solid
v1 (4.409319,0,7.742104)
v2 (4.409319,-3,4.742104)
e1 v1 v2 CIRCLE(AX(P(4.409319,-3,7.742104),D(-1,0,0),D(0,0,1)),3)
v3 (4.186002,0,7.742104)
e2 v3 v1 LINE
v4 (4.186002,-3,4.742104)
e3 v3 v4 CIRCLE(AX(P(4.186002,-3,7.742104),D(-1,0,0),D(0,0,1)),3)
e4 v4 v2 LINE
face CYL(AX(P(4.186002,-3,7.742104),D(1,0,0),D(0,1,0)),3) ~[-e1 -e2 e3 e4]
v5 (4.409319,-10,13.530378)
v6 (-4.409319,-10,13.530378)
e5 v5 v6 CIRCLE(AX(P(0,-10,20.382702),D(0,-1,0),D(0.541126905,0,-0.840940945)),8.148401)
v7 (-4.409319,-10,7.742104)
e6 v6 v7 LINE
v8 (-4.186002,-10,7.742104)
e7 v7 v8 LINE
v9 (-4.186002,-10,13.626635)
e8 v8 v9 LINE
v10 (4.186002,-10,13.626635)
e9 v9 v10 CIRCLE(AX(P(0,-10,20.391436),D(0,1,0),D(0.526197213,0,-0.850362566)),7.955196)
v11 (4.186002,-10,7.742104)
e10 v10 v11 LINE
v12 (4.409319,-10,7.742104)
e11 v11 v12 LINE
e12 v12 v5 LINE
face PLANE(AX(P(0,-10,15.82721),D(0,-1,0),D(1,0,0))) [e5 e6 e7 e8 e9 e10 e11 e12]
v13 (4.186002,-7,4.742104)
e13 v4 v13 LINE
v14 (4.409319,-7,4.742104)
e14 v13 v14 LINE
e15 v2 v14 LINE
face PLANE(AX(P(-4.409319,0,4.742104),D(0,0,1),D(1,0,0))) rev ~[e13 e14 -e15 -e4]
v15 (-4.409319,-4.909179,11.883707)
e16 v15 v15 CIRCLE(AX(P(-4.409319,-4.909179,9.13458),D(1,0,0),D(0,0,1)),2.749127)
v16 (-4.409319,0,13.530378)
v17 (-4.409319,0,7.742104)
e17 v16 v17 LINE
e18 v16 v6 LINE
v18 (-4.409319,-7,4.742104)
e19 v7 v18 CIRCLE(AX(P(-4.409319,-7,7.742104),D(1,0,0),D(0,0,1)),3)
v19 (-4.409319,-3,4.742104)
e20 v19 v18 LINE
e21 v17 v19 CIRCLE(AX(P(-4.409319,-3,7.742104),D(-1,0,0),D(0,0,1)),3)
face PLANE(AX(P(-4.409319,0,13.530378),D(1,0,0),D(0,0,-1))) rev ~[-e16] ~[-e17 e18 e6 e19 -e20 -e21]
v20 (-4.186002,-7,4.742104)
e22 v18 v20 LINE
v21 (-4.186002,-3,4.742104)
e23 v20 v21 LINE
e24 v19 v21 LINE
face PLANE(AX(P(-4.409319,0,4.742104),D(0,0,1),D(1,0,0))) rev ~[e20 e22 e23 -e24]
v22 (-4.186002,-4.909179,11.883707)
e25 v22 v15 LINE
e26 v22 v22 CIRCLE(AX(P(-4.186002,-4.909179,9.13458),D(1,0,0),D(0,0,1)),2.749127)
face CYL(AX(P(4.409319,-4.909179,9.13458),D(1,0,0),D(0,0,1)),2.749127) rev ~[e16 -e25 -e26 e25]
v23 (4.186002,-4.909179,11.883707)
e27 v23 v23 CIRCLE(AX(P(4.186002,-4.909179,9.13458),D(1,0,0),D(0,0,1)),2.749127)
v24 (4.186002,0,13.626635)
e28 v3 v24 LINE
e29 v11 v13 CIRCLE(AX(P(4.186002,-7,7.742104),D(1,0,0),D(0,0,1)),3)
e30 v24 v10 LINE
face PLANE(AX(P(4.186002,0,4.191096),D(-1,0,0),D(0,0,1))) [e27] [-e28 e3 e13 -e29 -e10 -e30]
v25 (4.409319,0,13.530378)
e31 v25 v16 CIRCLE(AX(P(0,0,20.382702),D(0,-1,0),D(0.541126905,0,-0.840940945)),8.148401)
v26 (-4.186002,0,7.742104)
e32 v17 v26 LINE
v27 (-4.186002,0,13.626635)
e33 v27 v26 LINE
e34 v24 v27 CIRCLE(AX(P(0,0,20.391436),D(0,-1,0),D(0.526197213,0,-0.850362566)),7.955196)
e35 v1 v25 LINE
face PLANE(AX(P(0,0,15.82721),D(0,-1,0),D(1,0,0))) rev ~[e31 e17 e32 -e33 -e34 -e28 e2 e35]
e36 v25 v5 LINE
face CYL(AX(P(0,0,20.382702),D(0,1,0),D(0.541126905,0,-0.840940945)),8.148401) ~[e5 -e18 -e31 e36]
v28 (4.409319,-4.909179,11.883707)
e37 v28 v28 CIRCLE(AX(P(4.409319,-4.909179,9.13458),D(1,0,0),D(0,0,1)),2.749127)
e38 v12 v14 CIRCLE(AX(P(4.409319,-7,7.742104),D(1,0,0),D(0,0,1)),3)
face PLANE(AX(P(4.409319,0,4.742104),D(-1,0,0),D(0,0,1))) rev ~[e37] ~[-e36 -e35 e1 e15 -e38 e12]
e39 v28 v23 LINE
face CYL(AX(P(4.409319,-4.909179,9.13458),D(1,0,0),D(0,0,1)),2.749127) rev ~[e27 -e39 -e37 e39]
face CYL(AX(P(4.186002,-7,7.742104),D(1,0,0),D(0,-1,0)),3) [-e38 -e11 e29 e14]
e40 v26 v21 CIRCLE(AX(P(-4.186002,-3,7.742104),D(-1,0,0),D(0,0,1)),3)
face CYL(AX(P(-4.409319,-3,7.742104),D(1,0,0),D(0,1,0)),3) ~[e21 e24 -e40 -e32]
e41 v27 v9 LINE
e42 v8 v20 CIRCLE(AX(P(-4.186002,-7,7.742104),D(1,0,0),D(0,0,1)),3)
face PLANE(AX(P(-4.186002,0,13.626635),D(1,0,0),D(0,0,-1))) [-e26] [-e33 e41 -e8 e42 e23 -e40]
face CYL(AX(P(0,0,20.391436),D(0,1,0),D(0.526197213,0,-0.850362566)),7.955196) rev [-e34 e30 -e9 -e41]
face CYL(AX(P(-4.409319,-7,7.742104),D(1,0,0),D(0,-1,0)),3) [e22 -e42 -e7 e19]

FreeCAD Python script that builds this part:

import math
import FreeCAD as App
import Part
import Sketcher
from FreeCAD import Vector
Q = App.Units.Quantity


def edges_at(feature, points):
    """Names of the edges that pass closest to the given points."""
    edges = feature.Shape.Edges
    near = lambda p: min(range(len(edges)), key=lambda i: edges[i].distToShape(Part.Vertex(*p))[0])
    return sorted({f"Edge{near(p) + 1}" for p in points})

doc = App.newDocument("Part")
body = doc.addObject("PartDesign::Body", "Body")

# Sketch on XZ plane
sketch1 = body.newObject("Sketcher::SketchObject", "Sketch")
sketch1.AttachmentSupport = (doc.getObject("XZ_Plane"), [""])
sketch1.MapMode = "FlatFace"
sketch1.addGeometry(Part.ArcOfCircle(Part.Circle(Vector(0, 20, 0), Vector(0, 0, 1), 8), math.radians(-57), math.radians(237)), False)
sketch1.addGeometry(Part.LineSegment(Vector(-4, 14, 0), Vector(-4, 5, 0)), False)
sketch1.addGeometry(Part.LineSegment(Vector(-4, 5, 0), Vector(4, 5, 0)), False)
sketch1.addGeometry(Part.LineSegment(Vector(4, 5, 0), Vector(4, 14, 0)), False)
sketch1.addConstraint(Sketcher.Constraint("Coincident", 0, 2, 1, 1))
sketch1.addConstraint(Sketcher.Constraint("Coincident", 1, 2, 2, 1))
sketch1.addConstraint(Sketcher.Constraint("Coincident", 2, 2, 3, 1))
sketch1.addConstraint(Sketcher.Constraint("Coincident", 3, 2, 0, 1))
sketch1.addConstraint(Sketcher.Constraint("Vertical", 1))
sketch1.addConstraint(Sketcher.Constraint("Horizontal", 2))
sketch1.addConstraint(Sketcher.Constraint("Vertical", 3))
sketch1.addConstraint(Sketcher.Constraint("Symmetric", 0, 2, 3, 2, -2))
sketch1.addConstraint(Sketcher.Constraint("Radius", 0, Q("8.148401 mm")))
sketch1.addConstraint(Sketcher.Constraint("DistanceY", 1, 2, 0, 3, Q("15.640598 mm")))
sketch1.addConstraint(Sketcher.Constraint("DistanceX", 2, 1, 2, 2, Q("8.818638 mm")))
sketch1.addConstraint(Sketcher.Constraint("DistanceY", -1, 1, 3, 2, Q("13.530378 mm")))
pad1 = body.newObject("PartDesign::Pad", "Pad")
pad1.Profile = sketch1
pad1.Length = 10

# Sketch on XZ plane
sketch2 = body.newObject("Sketcher::SketchObject", "Sketch001")
sketch2.AttachmentSupport = (doc.getObject("XZ_Plane"), [""])
sketch2.MapMode = "FlatFace"
sketch2.addGeometry(Part.ArcOfCircle(Part.Circle(Vector(0, 20, 0), Vector(0, 0, 1), 8), math.radians(-58), math.radians(238)), False)
sketch2.addGeometry(Part.LineSegment(Vector(-4, 14, 0), Vector(-4, 4, 0)), False)
sketch2.addGeometry(Part.LineSegment(Vector(-4, 4, 0), Vector(4, 4, 0)), False)
sketch2.addGeometry(Part.LineSegment(Vector(4, 4, 0), Vector(4, 14, 0)), False)
sketch2.addConstraint(Sketcher.Constraint("Coincident", 0, 2, 1, 1))
sketch2.addConstraint(Sketcher.Constraint("Coincident", 1, 2, 2, 1))
sketch2.addConstraint(Sketcher.Constraint("Coincident", 2, 2, 3, 1))
sketch2.addConstraint(Sketcher.Constraint("Coincident", 3, 2, 0, 1))
sketch2.addConstraint(Sketcher.Constraint("Vertical", 1))
sketch2.addConstraint(Sketcher.Constraint("Horizontal", 2))
sketch2.addConstraint(Sketcher.Constraint("Vertical", 3))
sketch2.addConstraint(Sketcher.Constraint("Symmetric", 0, 2, 3, 2, -2))
sketch2.addConstraint(Sketcher.Constraint("DistanceX", 0, 2, -1, 1, Q("4.186002 mm")))
sketch2.addConstraint(Sketcher.Constraint("Radius", 0, Q("7.955196 mm")))
sketch2.addConstraint(Sketcher.Constraint("DistanceY", 1, 2, 1, 1, Q("9.435539 mm")))
sketch2.addConstraint(Sketcher.Constraint("DistanceY", -1, 1, 0, 3, Q("20.391436 mm")))
pocket1 = body.newObject("PartDesign::Pocket", "Pocket")
pocket1.Profile = sketch2
pocket1.Type = "ThroughAll"
pocket1.Reversed = True

# Sketch on YZ plane
sketch3 = body.newObject("Sketcher::SketchObject", "Sketch002")
sketch3.AttachmentSupport = (doc.getObject("YZ_Plane"), [""])
sketch3.MapMode = "FlatFace"
sketch3.AttachmentOffset = App.Placement(Vector(0, 0, 4.409319), App.Rotation())
sketch3.addGeometry(Part.Circle(Vector(-4.9, 9.1, 0), Vector(0, 0, 1), 2.7), False)
sketch3.addConstraint(Sketcher.Constraint("Diameter", 0, Q("5.498254 mm")))
sketch3.addConstraint(Sketcher.Constraint("DistanceX", 0, 3, -1, 1, Q("4.909179 mm")))
sketch3.addConstraint(Sketcher.Constraint("DistanceY", -1, 1, 0, 3, Q("9.13458 mm")))
pocket2 = body.newObject("PartDesign::Pocket", "Pocket001")
pocket2.Profile = sketch3
pocket2.Type = "ThroughAll"
doc.recompute()

fillet = body.newObject("PartDesign::Fillet", "Fillet")
fillet.Base = (pocket2, edges_at(pocket2, [
    (4.298, -10, 4.742),
    (-4.298, -10, 4.742),
    (-4.298, 0, 4.742),
    (4.298, 0, 4.742),
]))
fillet.Radius = 3

doc.recompute()
